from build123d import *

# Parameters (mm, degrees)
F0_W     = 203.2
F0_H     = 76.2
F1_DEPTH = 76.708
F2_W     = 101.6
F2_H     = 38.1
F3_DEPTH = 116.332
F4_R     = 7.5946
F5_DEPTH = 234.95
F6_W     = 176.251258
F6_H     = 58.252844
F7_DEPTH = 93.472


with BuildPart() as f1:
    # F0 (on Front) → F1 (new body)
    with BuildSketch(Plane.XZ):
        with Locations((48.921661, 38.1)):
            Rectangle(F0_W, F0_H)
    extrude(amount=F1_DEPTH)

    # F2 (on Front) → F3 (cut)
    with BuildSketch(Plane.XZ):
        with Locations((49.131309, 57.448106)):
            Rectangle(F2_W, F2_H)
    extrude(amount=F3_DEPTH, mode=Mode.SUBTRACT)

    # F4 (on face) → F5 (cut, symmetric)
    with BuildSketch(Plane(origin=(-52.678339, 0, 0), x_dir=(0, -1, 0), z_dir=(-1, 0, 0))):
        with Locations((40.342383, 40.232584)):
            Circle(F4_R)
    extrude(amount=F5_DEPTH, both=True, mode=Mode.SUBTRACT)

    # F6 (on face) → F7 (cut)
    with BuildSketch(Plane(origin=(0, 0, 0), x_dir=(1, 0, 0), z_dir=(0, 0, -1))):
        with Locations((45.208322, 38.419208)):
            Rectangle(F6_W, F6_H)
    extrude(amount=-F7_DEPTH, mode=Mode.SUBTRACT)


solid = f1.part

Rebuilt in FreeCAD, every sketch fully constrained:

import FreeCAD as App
import Part
import Sketcher
Q = App.Units.Quantity

doc = App.newDocument("Part")
body = doc.addObject("PartDesign::Body", "Body")

# Sketch on XZ plane
sketch1 = body.newObject("Sketcher::SketchObject", "Sketch")
sketch1.AttachmentSupport = (doc.getObject("XZ_Plane"), [""])
sketch1.MapMode = "FlatFace"
sketch1.addGeometry([
    Part.LineSegment(App.Vector(-53, 76, 0), App.Vector(-53, 0, 0)),
    Part.LineSegment(App.Vector(-53, 0, 0), App.Vector(151, 0, 0)),
    Part.LineSegment(App.Vector(151, 0, 0), App.Vector(151, 76, 0)),
    Part.LineSegment(App.Vector(151, 76, 0), App.Vector(-53, 76, 0)),
], False)
sketch1.addConstraint([
    Sketcher.Constraint("Coincident", 0, 2, 1, 1),
    Sketcher.Constraint("Coincident", 1, 2, 2, 1),
    Sketcher.Constraint("Coincident", 2, 2, 3, 1),
    Sketcher.Constraint("Coincident", 3, 2, 0, 1),
    Sketcher.Constraint("Vertical", 0),
    Sketcher.Constraint("Horizontal", 1),
    Sketcher.Constraint("Vertical", 2),
    Sketcher.Constraint("Horizontal", 3),
    Sketcher.Constraint("PointOnObject", 0, 2, -1),
    Sketcher.Constraint("DistanceX", 1, 1, 1, 2, Q("8 in")),
    Sketcher.Constraint("DistanceY", 0, 2, 0, 1, Q("3 in")),
    Sketcher.Constraint("DistanceX", 0, 2, -1, 1, 52.678339),
])
pad1 = body.newObject("PartDesign::Pad", "Pad")
pad1.Profile = sketch1
pad1.Length = Q("3.02 in")

# Sketch on XZ plane
sketch2 = body.newObject("Sketcher::SketchObject", "Sketch001")
sketch2.AttachmentSupport = (doc.getObject("XZ_Plane"), [""])
sketch2.MapMode = "FlatFace"
sketch2.addGeometry([
    Part.LineSegment(App.Vector(-2, 76, 0), App.Vector(-2, 38, 0)),
    Part.LineSegment(App.Vector(-2, 38, 0), App.Vector(100, 38, 0)),
    Part.LineSegment(App.Vector(100, 38, 0), App.Vector(100, 76, 0)),
    Part.LineSegment(App.Vector(100, 76, 0), App.Vector(-2, 76, 0)),
], False)
sketch2.addConstraint([
    Sketcher.Constraint("Coincident", 0, 2, 1, 1),
    Sketcher.Constraint("Coincident", 1, 2, 2, 1),
    Sketcher.Constraint("Coincident", 2, 2, 3, 1),
    Sketcher.Constraint("Coincident", 3, 2, 0, 1),
    Sketcher.Constraint("Vertical", 0),
    Sketcher.Constraint("Horizontal", 1),
    Sketcher.Constraint("Vertical", 2),
    Sketcher.Constraint("Horizontal", 3),
    Sketcher.Constraint("DistanceX", 1, 1, 1, 2, Q("4 in")),
    Sketcher.Constraint("DistanceY", 0, 2, 0, 1, Q("1.5 in")),
    Sketcher.Constraint("DistanceX", 0, 2, -1, 1, 1.668691),
    Sketcher.Constraint("DistanceY", -1, 1, 0, 2, 38.398106),
])
pocket1 = body.newObject("PartDesign::Pocket", "Pocket")
pocket1.Profile = sketch2
pocket1.Length = Q("4.58 in")
pocket1.Reversed = True

# Sketch on YZ plane
sketch3 = body.newObject("Sketcher::SketchObject", "Sketch002")
sketch3.AttachmentSupport = (doc.getObject("YZ_Plane"), [""])
sketch3.MapMode = "FlatFace"
sketch3.AttachmentOffset = App.Placement(App.Vector(0, 0, -52.678339), App.Rotation())
sketch3.addGeometry(Part.Circle(App.Vector(-40, 40, 0), App.Vector(0, 0, 1), 8), False)
sketch3.addConstraint([
    Sketcher.Constraint("Diameter", 0, Q("0.598 in")),
    Sketcher.Constraint("DistanceX", 0, 3, -1, 1, 40.342383),
    Sketcher.Constraint("DistanceY", -1, 1, 0, 3, 40.232584),
])
pocket2 = body.newObject("PartDesign::Pocket", "Pocket001")
pocket2.Profile = sketch3
pocket2.Length = Q("18.5 in")
pocket2.Midplane = True

# Sketch on XY plane
sketch4 = body.newObject("Sketcher::SketchObject", "Sketch003")
sketch4.AttachmentSupport = (doc.getObject("XY_Plane"), [""])
sketch4.MapMode = "FlatFace"
sketch4.addGeometry([
    Part.LineSegment(App.Vector(-43, -68, 0), App.Vector(-43, -9, 0)),
    Part.LineSegment(App.Vector(-43, -9, 0), App.Vector(133, -9, 0)),
    Part.LineSegment(App.Vector(133, -9, 0), App.Vector(133, -68, 0)),
    Part.LineSegment(App.Vector(133, -68, 0), App.Vector(-43, -68, 0)),
], False)
sketch4.addConstraint([
    Sketcher.Constraint("Coincident", 0, 2, 1, 1),
    Sketcher.Constraint("Coincident", 1, 2, 2, 1),
    Sketcher.Constraint("Coincident", 2, 2, 3, 1),
    Sketcher.Constraint("Coincident", 3, 2, 0, 1),
    Sketcher.Constraint("Vertical", 0),
    Sketcher.Constraint("Horizontal", 1),
    Sketcher.Constraint("Vertical", 2),
    Sketcher.Constraint("Horizontal", 3),
    Sketcher.Constraint("DistanceX", 1, 1, 1, 2, 176.251258),
    Sketcher.Constraint("DistanceY", 0, 1, 0, 2, 58.252844),
    Sketcher.Constraint("DistanceX", -1, 1, 1, 2, 133.333951),
    Sketcher.Constraint("DistanceY", 2, 2, -1, 1, 67.54563),
])
pocket3 = body.newObject("PartDesign::Pocket", "Pocket002")
pocket3.Profile = sketch4
pocket3.Length = Q("3.68 in")
pocket3.Reversed = True

doc.recompute()
